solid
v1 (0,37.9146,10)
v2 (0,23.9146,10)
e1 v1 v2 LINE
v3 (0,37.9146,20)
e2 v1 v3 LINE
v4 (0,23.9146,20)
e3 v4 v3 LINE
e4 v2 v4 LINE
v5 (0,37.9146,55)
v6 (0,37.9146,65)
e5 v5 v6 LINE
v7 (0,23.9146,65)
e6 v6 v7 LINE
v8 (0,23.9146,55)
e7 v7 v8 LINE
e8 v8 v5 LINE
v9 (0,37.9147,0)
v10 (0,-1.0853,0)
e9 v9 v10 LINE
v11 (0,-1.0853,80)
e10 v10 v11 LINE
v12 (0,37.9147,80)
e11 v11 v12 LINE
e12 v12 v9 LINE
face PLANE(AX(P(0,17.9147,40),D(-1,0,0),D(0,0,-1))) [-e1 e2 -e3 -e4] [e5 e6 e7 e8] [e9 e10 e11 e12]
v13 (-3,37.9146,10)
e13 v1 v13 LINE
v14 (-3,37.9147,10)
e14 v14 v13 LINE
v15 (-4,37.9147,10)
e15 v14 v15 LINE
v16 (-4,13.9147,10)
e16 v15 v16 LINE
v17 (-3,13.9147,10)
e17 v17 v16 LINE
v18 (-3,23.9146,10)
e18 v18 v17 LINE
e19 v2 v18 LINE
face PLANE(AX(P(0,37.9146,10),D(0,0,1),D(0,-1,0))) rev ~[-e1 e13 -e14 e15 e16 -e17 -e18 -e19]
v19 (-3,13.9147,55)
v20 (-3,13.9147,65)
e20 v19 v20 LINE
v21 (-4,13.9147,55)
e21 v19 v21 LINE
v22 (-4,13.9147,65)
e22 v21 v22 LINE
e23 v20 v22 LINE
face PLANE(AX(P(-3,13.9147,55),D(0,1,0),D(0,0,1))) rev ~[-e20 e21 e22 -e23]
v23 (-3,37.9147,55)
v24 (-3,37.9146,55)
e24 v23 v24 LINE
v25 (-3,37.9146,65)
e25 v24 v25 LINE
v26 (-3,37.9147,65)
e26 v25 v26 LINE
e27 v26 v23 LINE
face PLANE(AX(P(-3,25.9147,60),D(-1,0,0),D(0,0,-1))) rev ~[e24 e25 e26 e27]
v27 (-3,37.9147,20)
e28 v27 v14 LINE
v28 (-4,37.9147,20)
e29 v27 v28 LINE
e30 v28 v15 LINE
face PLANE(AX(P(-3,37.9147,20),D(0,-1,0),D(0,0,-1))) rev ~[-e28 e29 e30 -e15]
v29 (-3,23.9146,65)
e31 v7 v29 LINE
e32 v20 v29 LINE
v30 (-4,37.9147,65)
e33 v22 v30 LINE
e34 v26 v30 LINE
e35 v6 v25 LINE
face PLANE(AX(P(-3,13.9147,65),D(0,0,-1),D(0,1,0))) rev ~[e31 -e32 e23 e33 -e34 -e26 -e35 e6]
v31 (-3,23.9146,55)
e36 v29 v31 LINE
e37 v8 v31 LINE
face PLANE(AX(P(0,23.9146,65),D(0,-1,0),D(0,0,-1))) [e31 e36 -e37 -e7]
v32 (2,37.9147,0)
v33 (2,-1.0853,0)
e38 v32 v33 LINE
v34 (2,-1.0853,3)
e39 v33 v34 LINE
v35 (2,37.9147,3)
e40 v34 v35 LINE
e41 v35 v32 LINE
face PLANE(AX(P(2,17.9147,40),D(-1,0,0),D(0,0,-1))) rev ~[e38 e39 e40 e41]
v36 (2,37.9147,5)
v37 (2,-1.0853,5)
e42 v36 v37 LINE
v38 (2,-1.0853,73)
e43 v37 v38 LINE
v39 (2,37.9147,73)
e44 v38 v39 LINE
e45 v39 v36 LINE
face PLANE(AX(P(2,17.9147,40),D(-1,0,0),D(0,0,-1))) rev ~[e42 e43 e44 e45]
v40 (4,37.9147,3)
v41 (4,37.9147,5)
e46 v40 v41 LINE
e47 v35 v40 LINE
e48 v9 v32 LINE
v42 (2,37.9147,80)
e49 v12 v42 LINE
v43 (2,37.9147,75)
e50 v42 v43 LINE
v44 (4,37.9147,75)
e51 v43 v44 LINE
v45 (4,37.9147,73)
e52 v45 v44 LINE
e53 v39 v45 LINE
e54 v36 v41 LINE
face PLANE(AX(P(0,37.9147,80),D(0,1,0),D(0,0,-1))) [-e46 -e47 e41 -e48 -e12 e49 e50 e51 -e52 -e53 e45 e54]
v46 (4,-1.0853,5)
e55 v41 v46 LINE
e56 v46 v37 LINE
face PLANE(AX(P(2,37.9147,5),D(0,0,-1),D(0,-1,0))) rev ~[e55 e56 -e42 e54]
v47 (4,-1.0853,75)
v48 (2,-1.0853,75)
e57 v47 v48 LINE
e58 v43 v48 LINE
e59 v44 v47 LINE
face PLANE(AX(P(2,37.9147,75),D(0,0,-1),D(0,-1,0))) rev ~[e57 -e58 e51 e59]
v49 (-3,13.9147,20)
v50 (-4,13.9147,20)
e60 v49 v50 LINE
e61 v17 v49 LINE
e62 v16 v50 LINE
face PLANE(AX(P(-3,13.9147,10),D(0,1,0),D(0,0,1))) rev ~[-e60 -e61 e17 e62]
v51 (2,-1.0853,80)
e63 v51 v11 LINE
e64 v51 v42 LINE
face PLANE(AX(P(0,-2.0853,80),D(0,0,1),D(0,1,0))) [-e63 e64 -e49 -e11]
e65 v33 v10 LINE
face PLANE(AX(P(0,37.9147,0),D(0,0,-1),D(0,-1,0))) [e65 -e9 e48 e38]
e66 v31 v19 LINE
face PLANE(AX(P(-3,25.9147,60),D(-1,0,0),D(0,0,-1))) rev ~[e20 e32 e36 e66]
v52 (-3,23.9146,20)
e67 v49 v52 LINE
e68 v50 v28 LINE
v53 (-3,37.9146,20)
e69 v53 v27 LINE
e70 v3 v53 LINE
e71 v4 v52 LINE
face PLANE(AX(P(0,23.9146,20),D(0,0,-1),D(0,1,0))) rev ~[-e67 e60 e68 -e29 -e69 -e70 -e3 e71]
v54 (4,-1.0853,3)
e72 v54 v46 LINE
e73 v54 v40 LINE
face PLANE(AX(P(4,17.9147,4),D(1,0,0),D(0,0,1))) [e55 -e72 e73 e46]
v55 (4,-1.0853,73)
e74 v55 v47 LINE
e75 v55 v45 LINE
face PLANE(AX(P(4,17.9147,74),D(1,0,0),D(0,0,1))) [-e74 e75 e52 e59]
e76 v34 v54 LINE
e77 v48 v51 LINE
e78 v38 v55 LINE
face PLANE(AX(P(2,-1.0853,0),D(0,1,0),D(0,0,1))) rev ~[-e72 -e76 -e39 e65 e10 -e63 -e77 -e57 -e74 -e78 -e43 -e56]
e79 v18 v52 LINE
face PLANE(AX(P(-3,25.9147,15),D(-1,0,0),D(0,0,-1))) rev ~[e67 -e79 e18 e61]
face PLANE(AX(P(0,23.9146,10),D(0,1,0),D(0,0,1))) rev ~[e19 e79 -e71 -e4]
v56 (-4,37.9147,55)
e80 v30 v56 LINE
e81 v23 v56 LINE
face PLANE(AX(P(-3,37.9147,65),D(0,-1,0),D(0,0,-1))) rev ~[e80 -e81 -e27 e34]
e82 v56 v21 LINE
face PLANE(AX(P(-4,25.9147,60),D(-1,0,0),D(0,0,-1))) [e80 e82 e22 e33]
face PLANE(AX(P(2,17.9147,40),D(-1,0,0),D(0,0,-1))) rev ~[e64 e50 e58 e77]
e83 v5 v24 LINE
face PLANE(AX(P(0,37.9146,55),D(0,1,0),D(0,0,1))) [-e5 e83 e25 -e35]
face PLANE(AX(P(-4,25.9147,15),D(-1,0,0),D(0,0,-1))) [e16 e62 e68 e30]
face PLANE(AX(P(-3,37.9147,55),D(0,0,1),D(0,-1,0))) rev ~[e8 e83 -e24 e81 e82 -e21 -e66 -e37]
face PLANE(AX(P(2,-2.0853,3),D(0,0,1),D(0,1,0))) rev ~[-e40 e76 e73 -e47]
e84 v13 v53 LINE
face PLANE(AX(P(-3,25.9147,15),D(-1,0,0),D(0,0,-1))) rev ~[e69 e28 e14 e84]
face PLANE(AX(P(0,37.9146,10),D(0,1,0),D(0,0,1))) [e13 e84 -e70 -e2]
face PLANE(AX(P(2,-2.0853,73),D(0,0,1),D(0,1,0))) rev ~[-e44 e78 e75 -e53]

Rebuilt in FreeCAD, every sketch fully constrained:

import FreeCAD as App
import Part
import Sketcher
Q = App.Units.Quantity


def add_polygon(sketch, points):
    """Adds a closed chain of lines whose ends are joined by coincident constraints."""
    first, n = sketch.GeometryCount, len(points)
    for a, b in zip(points, points[1:] + points[:1]):
        sketch.addGeometry(Part.LineSegment(App.Vector(*a, 0), App.Vector(*b, 0)), False)
    for i in range(n):
        sketch.addConstraint(Sketcher.Constraint("Coincident", first + i, 2, first + (i + 1) % n, 1))

doc = App.newDocument("Part")
body = doc.addObject("PartDesign::Body", "Body")

# Sketch on YZ plane
sketch1 = body.newObject("Sketcher::SketchObject", "Sketch")
sketch1.AttachmentSupport = (doc.getObject("YZ_Plane"), [""])
sketch1.MapMode = "FlatFace"
add_polygon(sketch1, [(38, 0), (-2, 0), (-2, 80), (38, 80)])  # lines 0-3
sketch1.addConstraint([
    Sketcher.Constraint("Horizontal", 0),
    Sketcher.Constraint("Vertical", 1),
    Sketcher.Constraint("Horizontal", 2),
    Sketcher.Constraint("Vertical", 3),
    Sketcher.Constraint("PointOnObject", 0, 2, -1),
    Sketcher.Constraint("DistanceX", 0, 2, 0, 1, Q("40 mm")),
    Sketcher.Constraint("DistanceY", 1, 1, 1, 2, Q("80 mm")),
    Sketcher.Constraint("DistanceX", 0, 2, -1, 1, Q("2.0853 mm")),
])
pad1 = body.newObject("PartDesign::Pad", "Pad")
pad1.Profile = sketch1
pad1.Length = 2

# Sketch on YZ plane
sketch2 = body.newObject("Sketcher::SketchObject", "Sketch001")
sketch2.AttachmentSupport = (doc.getObject("YZ_Plane"), [""])
sketch2.MapMode = "FlatFace"
add_polygon(sketch2, [(24, 10), (24, 20), (38, 20), (38, 10)])  # lines 0-3
add_polygon(sketch2, [(24, 65), (38, 65), (38, 55), (24, 55)])  # lines 4-7
sketch2.addConstraint([
    Sketcher.Constraint("Vertical", 0),
    Sketcher.Constraint("Horizontal", 1),
    Sketcher.Constraint("Vertical", 2),
    Sketcher.Constraint("Horizontal", 3),
    Sketcher.Constraint("Horizontal", 4),
    Sketcher.Constraint("Vertical", 5),
    Sketcher.Constraint("Horizontal", 6),
    Sketcher.Constraint("Vertical", 7),
    Sketcher.Constraint("Vertical", 2, 2, 4, 2),
    Sketcher.Constraint("Vertical", 3, 2, 6, 2),
    Sketcher.Constraint("Equal", 2, 5),
    Sketcher.Constraint("DistanceX", 1, 1, 1, 2, Q("14 mm")),
    Sketcher.Constraint("DistanceY", 0, 1, 0, 2, Q("10 mm")),
    Sketcher.Constraint("DistanceY", -1, 1, 0, 2, Q("20 mm")),
    Sketcher.Constraint("DistanceY", -1, 1, 4, 2, Q("65 mm")),
    Sketcher.Constraint("DistanceX", -1, 1, 0, 2, Q("23.9146 mm")),
])
pad2 = body.newObject("PartDesign::Pad", "Pad001")
pad2.Profile = sketch2
pad2.Length = 3
pad2.Reversed = True

# Sketch on YZ plane
sketch3 = body.newObject("Sketcher::SketchObject", "Sketch002")
sketch3.AttachmentSupport = (doc.getObject("YZ_Plane"), [""])
sketch3.MapMode = "FlatFace"
sketch3.AttachmentOffset = App.Placement(App.Vector(0, 0, -3), App.Rotation())
add_polygon(sketch3, [(14, 55), (14, 65), (38, 65), (38, 55)])  # lines 0-3
add_polygon(sketch3, [(14, 10), (14, 20), (38, 20), (38, 10)])  # lines 4-7
sketch3.addConstraint([
    Sketcher.Constraint("Vertical", 0),
    Sketcher.Constraint("Horizontal", 1),
    Sketcher.Constraint("Vertical", 2),
    Sketcher.Constraint("Horizontal", 3),
    Sketcher.Constraint("Vertical", 4),
    Sketcher.Constraint("Horizontal", 5),
    Sketcher.Constraint("Vertical", 6),
    Sketcher.Constraint("Horizontal", 7),
    Sketcher.Constraint("Vertical", 3, 2, 4, 2),
    Sketcher.Constraint("Vertical", 2, 2, 5, 2),
    Sketcher.Constraint("Equal", 2, 4),
    Sketcher.Constraint("DistanceX", 1, 1, 1, 2, Q("24 mm")),
    Sketcher.Constraint("DistanceY", 0, 1, 0, 2, Q("10 mm")),
    Sketcher.Constraint("DistanceY", -1, 1, 0, 2, Q("65 mm")),
    Sketcher.Constraint("DistanceY", -1, 1, 4, 2, Q("20 mm")),
    Sketcher.Constraint("DistanceX", -1, 1, 0, 2, Q("13.9147 mm")),
])
pad3 = body.newObject("PartDesign::Pad", "Pad002")
pad3.Profile = sketch3
pad3.Length = 1
pad3.Reversed = True

# Sketch on YZ plane
sketch4 = body.newObject("Sketcher::SketchObject", "Sketch003")
sketch4.AttachmentSupport = (doc.getObject("YZ_Plane"), [""])
sketch4.MapMode = "FlatFace"
sketch4.AttachmentOffset = App.Placement(App.Vector(0, 0, 2), App.Rotation())
add_polygon(sketch4, [(-2.1, 75), (-2.1, 73), (37.9, 73), (37.9, 75)])  # lines 0-3
sketch4.addConstraint([
    Sketcher.Constraint("Vertical", 0),
    Sketcher.Constraint("Horizontal", 1),
    Sketcher.Constraint("Vertical", 2),
    Sketcher.Constraint("Horizontal", 3),
    Sketcher.Constraint("DistanceX", 1, 1, 1, 2, Q("40 mm")),
    Sketcher.Constraint("DistanceY", 0, 2, 0, 1, Q("2 mm")),
    Sketcher.Constraint("DistanceY", -1, 1, 0, 2, Q("73 mm")),
    Sketcher.Constraint("DistanceX", 0, 2, -1, 1, Q("2.0853 mm")),
])
pad4 = body.newObject("PartDesign::Pad", "Pad003")
pad4.Profile = sketch4
pad4.Length = 2

# Sketch on YZ plane
sketch5 = body.newObject("Sketcher::SketchObject", "Sketch004")
sketch5.AttachmentSupport = (doc.getObject("YZ_Plane"), [""])
sketch5.MapMode = "FlatFace"
sketch5.AttachmentOffset = App.Placement(App.Vector(0, 0, 2), App.Rotation())
add_polygon(sketch5, [(37.9, 3), (37.9, 5), (-2.1, 5), (-2.1, 3)])  # lines 0-3
sketch5.addConstraint([
    Sketcher.Constraint("Vertical", 0),
    Sketcher.Constraint("Horizontal", 1),
    Sketcher.Constraint("Vertical", 2),
    Sketcher.Constraint("Horizontal", 3),
    Sketcher.Constraint("DistanceX", 1, 2, 1, 1, Q("40 mm")),
    Sketcher.Constraint("DistanceY", 0, 1, 0, 2, Q("2 mm")),
    Sketcher.Constraint("DistanceY", -1, 1, 0, 2, Q("5 mm")),
    Sketcher.Constraint("DistanceX", -1, 1, 0, 2, Q("37.9147 mm")),
])
pad5 = body.newObject("PartDesign::Pad", "Pad004")
pad5.Profile = sketch5
pad5.Length = 2

# Sketch on YZ plane
sketch6 = body.newObject("Sketcher::SketchObject", "Sketch005")
sketch6.AttachmentSupport = (doc.getObject("YZ_Plane"), [""])
sketch6.MapMode = "FlatFace"
sketch6.AttachmentOffset = App.Placement(App.Vector(0, 0, 2), App.Rotation())
add_polygon(sketch6, [(-2.1, 0), (-1.1, 0), (-1.1, 80), (-2.1, 80)])  # lines 0-3
sketch6.addConstraint([
    Sketcher.Constraint("Horizontal", 0),
    Sketcher.Constraint("Vertical", 1),
    Sketcher.Constraint("Horizontal", 2),
    Sketcher.Constraint("Vertical", 3),
    Sketcher.Constraint("PointOnObject", 0, 2, -1),
    Sketcher.Constraint("DistanceX", 0, 1, 0, 2, Q("1 mm")),
    Sketcher.Constraint("DistanceY", 1, 1, 1, 2, Q("80 mm")),
    Sketcher.Constraint("DistanceX", 0, 2, -1, 1, Q("1.0853 mm")),
])
pocket1 = body.newObject("PartDesign::Pocket", "Pocket")
pocket1.Profile = sketch6
pocket1.Length = 2

# Sketch on YZ plane
sketch7 = body.newObject("Sketcher::SketchObject", "Sketch006")
sketch7.AttachmentSupport = (doc.getObject("YZ_Plane"), [""])
sketch7.MapMode = "FlatFace"
sketch7.AttachmentOffset = App.Placement(App.Vector(0, 0, 2), App.Rotation())
add_polygon(sketch7, [(-1.1, 80), (-2.1, 80), (-2.1, 0), (-1.1, 0)])  # lines 0-3
sketch7.addConstraint([
    Sketcher.Constraint("Horizontal", 0),
    Sketcher.Constraint("Vertical", 1),
    Sketcher.Constraint("Horizontal", 2),
    Sketcher.Constraint("Vertical", 3),
    Sketcher.Constraint("PointOnObject", 1, 2, -1),
    Sketcher.Constraint("DistanceX", 0, 2, 0, 1, Q("1 mm")),
    Sketcher.Constraint("DistanceY", 1, 2, 1, 1, Q("80 mm")),
    Sketcher.Constraint("DistanceX", 0, 2, -1, 1, Q("2.0853 mm")),
])
pocket2 = body.newObject("PartDesign::Pocket", "Pocket001")
pocket2.Profile = sketch7
pocket2.Length = 2
pocket2.Reversed = True

doc.recompute()
